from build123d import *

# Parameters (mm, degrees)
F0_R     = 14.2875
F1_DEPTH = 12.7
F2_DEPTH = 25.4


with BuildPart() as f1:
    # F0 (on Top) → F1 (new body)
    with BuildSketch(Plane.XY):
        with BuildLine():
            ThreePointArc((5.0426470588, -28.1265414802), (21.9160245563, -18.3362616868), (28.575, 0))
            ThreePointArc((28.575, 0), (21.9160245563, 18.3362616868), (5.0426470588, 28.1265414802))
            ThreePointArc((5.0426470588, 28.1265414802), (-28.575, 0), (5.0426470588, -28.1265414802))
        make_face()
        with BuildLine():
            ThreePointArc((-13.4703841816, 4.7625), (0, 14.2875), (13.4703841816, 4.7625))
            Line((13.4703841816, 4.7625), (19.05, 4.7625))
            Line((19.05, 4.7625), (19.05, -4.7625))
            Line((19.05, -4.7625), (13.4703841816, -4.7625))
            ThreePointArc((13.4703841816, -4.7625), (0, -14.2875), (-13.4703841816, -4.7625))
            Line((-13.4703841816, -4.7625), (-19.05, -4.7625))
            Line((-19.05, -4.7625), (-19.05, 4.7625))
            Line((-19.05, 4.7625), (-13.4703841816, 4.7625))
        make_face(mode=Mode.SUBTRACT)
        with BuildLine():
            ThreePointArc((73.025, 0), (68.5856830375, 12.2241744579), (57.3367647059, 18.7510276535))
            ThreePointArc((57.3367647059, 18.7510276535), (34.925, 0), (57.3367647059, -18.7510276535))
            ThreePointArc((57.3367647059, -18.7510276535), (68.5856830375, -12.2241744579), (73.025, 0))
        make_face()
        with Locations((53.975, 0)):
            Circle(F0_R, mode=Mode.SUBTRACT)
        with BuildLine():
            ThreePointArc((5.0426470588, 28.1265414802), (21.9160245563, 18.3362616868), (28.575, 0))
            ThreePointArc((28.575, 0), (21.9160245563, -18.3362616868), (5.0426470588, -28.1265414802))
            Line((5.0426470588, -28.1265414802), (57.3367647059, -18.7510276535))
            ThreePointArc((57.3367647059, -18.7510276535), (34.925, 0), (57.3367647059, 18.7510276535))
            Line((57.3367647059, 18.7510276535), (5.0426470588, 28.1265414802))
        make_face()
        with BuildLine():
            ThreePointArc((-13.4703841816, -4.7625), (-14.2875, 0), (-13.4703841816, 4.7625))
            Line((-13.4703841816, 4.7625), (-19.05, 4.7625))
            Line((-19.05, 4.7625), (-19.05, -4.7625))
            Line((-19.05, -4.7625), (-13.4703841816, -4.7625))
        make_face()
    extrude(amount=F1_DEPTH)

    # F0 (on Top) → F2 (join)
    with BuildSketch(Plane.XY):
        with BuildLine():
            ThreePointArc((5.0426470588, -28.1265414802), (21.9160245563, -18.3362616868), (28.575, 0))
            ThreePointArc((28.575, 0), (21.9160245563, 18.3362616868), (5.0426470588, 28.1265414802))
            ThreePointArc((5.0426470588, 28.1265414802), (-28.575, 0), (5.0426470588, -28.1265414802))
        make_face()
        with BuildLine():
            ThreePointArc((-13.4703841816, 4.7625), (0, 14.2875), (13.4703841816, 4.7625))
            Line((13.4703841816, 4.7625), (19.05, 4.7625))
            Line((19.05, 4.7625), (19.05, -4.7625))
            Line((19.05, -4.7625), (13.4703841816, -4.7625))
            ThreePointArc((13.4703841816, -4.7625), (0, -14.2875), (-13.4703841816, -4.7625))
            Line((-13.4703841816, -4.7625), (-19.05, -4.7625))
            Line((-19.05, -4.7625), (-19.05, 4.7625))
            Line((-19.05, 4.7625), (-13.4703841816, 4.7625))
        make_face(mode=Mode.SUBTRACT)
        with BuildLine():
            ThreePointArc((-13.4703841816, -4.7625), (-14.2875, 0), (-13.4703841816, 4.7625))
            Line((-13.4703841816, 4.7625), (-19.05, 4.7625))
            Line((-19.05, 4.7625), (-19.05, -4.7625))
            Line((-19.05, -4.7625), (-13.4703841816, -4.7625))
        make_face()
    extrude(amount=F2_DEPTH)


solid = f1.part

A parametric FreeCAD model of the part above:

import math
import FreeCAD as App
import Part
import Sketcher

V = App.Vector
Q = App.Units.Quantity

doc = App.newDocument("Part")
body = doc.addObject("PartDesign::Body", "Body")

# Sketch on XY plane
sketch1 = body.newObject("Sketcher::SketchObject", "Sketch")
sketch1.AttachmentSupport = (doc.getObject("XY_Plane"), [""])
sketch1.MapMode = "FlatFace"
sketch1.addGeometry([
    Part.ArcOfCircle(Part.Circle(V(0, 0, 0), V(0, 0, 1), 28.575), math.radians(79.835751), math.radians(280.164249)),  # 0
    Part.LineSegment(V(5.042647, -28.126541, 0), V(57.336765, -18.751028, 0)),  # 1
    Part.ArcOfCircle(Part.Circle(V(53.975, 0, 0), V(0, 0, 1), 19.05), math.radians(-79.835751), math.radians(0)),  # 2
    Part.ArcOfCircle(Part.Circle(V(53.975, 0, 0), V(0, 0, 1), 19.05), math.radians(0), math.radians(79.835751)),  # 3
    Part.LineSegment(V(57.336765, 18.751028, 0), V(5.042647, 28.126541, 0)),  # 4
    Part.ArcOfCircle(Part.Circle(V(0, 0, 0), V(0, 0, 1), 14.2875), math.radians(19.471221), math.radians(160.528779)),  # 5
    Part.LineSegment(V(13.470384, 4.7625, 0), V(19.05, 4.7625, 0)),  # 6
    Part.LineSegment(V(19.05, 4.7625, 0), V(19.05, -4.7625, 0)),  # 7
    Part.LineSegment(V(19.05, -4.7625, 0), V(13.470384, -4.7625, 0)),  # 8
    Part.ArcOfCircle(Part.Circle(V(0, 0, 0), V(0, 0, 1), 14.2875), math.radians(-160.528779), math.radians(-19.471221)),  # 9
    Part.ArcOfCircle(Part.Circle(V(0, 0, 0), V(0, 0, 1), 14.2875), math.radians(160.528779), math.radians(199.471221)),  # 10
    Part.Circle(V(53.975, 0, 0), V(0, 0, 1), 14.2875),  # 11
], False)
sketch1.addConstraint([
    Sketcher.Constraint("Tangent", 0, 2, 1, 1),
    Sketcher.Constraint("Tangent", 1, 2, 2, 1),
    Sketcher.Constraint("Tangent", 2, 2, 3, 1),
    Sketcher.Constraint("Tangent", 3, 2, 4, 1),
    Sketcher.Constraint("Tangent", 4, 2, 0, 1),
    Sketcher.Constraint("Coincident", 5, 1, 6, 1),
    Sketcher.Constraint("Coincident", 6, 2, 7, 1),
    Sketcher.Constraint("Coincident", 7, 2, 8, 1),
    Sketcher.Constraint("Coincident", 8, 2, 9, 2),
    Sketcher.Constraint("Tangent", 9, 1, 10, 2),
    Sketcher.Constraint("Tangent", 10, 1, 5, 2),
    Sketcher.Constraint("Horizontal", 6),
    Sketcher.Constraint("Vertical", 7),
    Sketcher.Constraint("Horizontal", 8),
    Sketcher.Constraint("Coincident", 0, 3, -1, 1),
    Sketcher.Constraint("Coincident", 5, 3, -1, 1),
    Sketcher.Constraint("Coincident", 9, 3, -1, 1),
    Sketcher.Constraint("Coincident", 11, 3, 2, 3),
    Sketcher.Constraint("Equal", 2, 3),
    Sketcher.Constraint("Equal", 10, 11),
    Sketcher.Constraint("PointOnObject", 2, 3, -1),
    Sketcher.Constraint("PointOnObject", 2, 2, -1),
    Sketcher.Constraint("Horizontal", 8, 2, 9, 1),
    Sketcher.Constraint("Horizontal", 6, 2, 10, 1),
    Sketcher.Constraint("Vertical", 5, 1, 8, 2),
    Sketcher.Constraint("Radius", 2, Q("0.75 in")),
    Sketcher.Constraint("Diameter", 11, Q("1.125 in")),
    Sketcher.Constraint("Radius", 0, Q("1.125 in")),
    Sketcher.Constraint("DistanceY", 7, 2, 7, 1, Q("0.375 in")),
    Sketcher.Constraint("DistanceX", -1, 1, 6, 2, Q("0.75 in")),
    Sketcher.Constraint("DistanceX", -1, 1, 2, 3, Q("2.125 in")),
])
pad1 = body.newObject("PartDesign::Pad", "Pad")
pad1.Profile = sketch1
pad1.Length = Q("0.5 in")

# Sketch on XY plane
sketch2 = body.newObject("Sketcher::SketchObject", "Sketch001")
sketch2.AttachmentSupport = (doc.getObject("XY_Plane"), [""])
sketch2.MapMode = "FlatFace"
sketch2.addGeometry([
    Part.ArcOfCircle(Part.Circle(V(0, 0, 0), V(0, 0, 1), 28.575), math.radians(-79.835751), math.radians(79.835751)),  # 0
    Part.ArcOfCircle(Part.Circle(V(0, 0, 0), V(0, 0, 1), 28.575), math.radians(79.835751), math.radians(280.164249)),  # 1
    Part.ArcOfCircle(Part.Circle(V(0, 0, 0), V(0, 0, 1), 14.2875), math.radians(-160.528779), math.radians(-19.471221)),  # 2
    Part.ArcOfCircle(Part.Circle(V(0, 0, 0), V(0, 0, 1), 14.2875), math.radians(160.528779), math.radians(199.471221)),  # 3
    Part.ArcOfCircle(Part.Circle(V(0, 0, 0), V(0, 0, 1), 14.2875), math.radians(19.471221), math.radians(160.528779)),  # 4
    Part.LineSegment(V(13.470384, 4.7625, 0), V(19.05, 4.7625, 0)),  # 5
    Part.LineSegment(V(19.05, 4.7625, 0), V(19.05, -4.7625, 0)),  # 6
    Part.LineSegment(V(19.05, -4.7625, 0), V(13.470384, -4.7625, 0)),  # 7
], False)
sketch2.addConstraint([
    Sketcher.Constraint("Tangent", 0, 1, 1, 2),
    Sketcher.Constraint("Coincident", 1, 1, 0, 2),
    Sketcher.Constraint("Tangent", 2, 1, 3, 2),
    Sketcher.Constraint("Tangent", 3, 1, 4, 2),
    Sketcher.Constraint("Coincident", 4, 1, 5, 1),
    Sketcher.Constraint("Coincident", 5, 2, 6, 1),
    Sketcher.Constraint("Coincident", 6, 2, 7, 1),
    Sketcher.Constraint("Coincident", 7, 2, 2, 2),
    Sketcher.Constraint("Horizontal", 5),
    Sketcher.Constraint("Vertical", 6),
    Sketcher.Constraint("Horizontal", 7),
    Sketcher.Constraint("Coincident", 0, 3, -1, 1),
    Sketcher.Constraint("Coincident", 2, 3, -1, 1),
    Sketcher.Constraint("Coincident", 4, 3, -1, 1),
    Sketcher.Constraint("Horizontal", 3, 1, 4, 1),
    Sketcher.Constraint("Horizontal", 2, 1, 6, 2),
    Sketcher.Constraint("Vertical", 0, 1, 1, 1),
    Sketcher.Constraint("Vertical", 2, 1, 3, 1),
    Sketcher.Constraint("Radius", 0, Q("1.125 in")),
    Sketcher.Constraint("Radius", 2, Q("0.5625 in")),
    Sketcher.Constraint("DistanceY", 6, 2, 6, 1, Q("0.375 in")),
    Sketcher.Constraint("DistanceX", -1, 1, 5, 2, Q("0.75 in")),
    Sketcher.Constraint("DistanceY", 0, 1, -1, 1, Q("28.126541 mm")),
])
pad2 = body.newObject("PartDesign::Pad", "Pad001")
pad2.Profile = sketch2
pad2.Length = Q("1 in")

doc.recompute()
